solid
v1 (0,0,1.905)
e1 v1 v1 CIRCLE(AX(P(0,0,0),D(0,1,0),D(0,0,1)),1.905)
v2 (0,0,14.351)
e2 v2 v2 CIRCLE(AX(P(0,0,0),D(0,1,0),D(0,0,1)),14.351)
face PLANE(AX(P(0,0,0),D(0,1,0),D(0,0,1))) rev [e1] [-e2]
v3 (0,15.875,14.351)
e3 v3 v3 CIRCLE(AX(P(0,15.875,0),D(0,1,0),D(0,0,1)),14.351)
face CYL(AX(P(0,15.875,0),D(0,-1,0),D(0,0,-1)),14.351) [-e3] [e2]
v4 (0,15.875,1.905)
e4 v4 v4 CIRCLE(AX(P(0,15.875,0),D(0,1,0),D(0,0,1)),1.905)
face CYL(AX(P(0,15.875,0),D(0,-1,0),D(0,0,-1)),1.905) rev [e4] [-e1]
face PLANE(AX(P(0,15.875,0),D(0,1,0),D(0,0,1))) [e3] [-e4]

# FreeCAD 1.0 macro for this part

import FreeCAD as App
import Part
import Sketcher
from FreeCAD import Vector
Q = App.Units.Quantity

doc = App.newDocument("Part")
body = doc.addObject("PartDesign::Body", "Body")

sketch1 = doc.addObject("Sketcher::SketchObject", "Sketch")
body.addObject(sketch1)
sketch1.AttachmentSupport = (doc.XZ_Plane, [""])
sketch1.MapMode = "FlatFace"
sketch1.addGeometry([
    Part.Circle(Vector(0, 0, 0), Vector(0, 0, 1), 14.4),
    Part.Circle(Vector(0, 0, 0), Vector(0, 0, 1), 1.9),
], False)
sketch1.addConstraint([
    Sketcher.Constraint("Coincident", 0, 3, -1, 1),
    Sketcher.Constraint("Coincident", 1, 3, -1, 1),
    Sketcher.Constraint("Diameter", 0, Q("1.13 in")),
    Sketcher.Constraint("Diameter", 1, Q("0.15 in")),
])
pad1 = doc.addObject("PartDesign::Pad", "Pad")
body.addObject(pad1)
pad1.Profile = sketch1
pad1.Length = Q("0.625 in")
pad1.Reversed = True

doc.recompute()
